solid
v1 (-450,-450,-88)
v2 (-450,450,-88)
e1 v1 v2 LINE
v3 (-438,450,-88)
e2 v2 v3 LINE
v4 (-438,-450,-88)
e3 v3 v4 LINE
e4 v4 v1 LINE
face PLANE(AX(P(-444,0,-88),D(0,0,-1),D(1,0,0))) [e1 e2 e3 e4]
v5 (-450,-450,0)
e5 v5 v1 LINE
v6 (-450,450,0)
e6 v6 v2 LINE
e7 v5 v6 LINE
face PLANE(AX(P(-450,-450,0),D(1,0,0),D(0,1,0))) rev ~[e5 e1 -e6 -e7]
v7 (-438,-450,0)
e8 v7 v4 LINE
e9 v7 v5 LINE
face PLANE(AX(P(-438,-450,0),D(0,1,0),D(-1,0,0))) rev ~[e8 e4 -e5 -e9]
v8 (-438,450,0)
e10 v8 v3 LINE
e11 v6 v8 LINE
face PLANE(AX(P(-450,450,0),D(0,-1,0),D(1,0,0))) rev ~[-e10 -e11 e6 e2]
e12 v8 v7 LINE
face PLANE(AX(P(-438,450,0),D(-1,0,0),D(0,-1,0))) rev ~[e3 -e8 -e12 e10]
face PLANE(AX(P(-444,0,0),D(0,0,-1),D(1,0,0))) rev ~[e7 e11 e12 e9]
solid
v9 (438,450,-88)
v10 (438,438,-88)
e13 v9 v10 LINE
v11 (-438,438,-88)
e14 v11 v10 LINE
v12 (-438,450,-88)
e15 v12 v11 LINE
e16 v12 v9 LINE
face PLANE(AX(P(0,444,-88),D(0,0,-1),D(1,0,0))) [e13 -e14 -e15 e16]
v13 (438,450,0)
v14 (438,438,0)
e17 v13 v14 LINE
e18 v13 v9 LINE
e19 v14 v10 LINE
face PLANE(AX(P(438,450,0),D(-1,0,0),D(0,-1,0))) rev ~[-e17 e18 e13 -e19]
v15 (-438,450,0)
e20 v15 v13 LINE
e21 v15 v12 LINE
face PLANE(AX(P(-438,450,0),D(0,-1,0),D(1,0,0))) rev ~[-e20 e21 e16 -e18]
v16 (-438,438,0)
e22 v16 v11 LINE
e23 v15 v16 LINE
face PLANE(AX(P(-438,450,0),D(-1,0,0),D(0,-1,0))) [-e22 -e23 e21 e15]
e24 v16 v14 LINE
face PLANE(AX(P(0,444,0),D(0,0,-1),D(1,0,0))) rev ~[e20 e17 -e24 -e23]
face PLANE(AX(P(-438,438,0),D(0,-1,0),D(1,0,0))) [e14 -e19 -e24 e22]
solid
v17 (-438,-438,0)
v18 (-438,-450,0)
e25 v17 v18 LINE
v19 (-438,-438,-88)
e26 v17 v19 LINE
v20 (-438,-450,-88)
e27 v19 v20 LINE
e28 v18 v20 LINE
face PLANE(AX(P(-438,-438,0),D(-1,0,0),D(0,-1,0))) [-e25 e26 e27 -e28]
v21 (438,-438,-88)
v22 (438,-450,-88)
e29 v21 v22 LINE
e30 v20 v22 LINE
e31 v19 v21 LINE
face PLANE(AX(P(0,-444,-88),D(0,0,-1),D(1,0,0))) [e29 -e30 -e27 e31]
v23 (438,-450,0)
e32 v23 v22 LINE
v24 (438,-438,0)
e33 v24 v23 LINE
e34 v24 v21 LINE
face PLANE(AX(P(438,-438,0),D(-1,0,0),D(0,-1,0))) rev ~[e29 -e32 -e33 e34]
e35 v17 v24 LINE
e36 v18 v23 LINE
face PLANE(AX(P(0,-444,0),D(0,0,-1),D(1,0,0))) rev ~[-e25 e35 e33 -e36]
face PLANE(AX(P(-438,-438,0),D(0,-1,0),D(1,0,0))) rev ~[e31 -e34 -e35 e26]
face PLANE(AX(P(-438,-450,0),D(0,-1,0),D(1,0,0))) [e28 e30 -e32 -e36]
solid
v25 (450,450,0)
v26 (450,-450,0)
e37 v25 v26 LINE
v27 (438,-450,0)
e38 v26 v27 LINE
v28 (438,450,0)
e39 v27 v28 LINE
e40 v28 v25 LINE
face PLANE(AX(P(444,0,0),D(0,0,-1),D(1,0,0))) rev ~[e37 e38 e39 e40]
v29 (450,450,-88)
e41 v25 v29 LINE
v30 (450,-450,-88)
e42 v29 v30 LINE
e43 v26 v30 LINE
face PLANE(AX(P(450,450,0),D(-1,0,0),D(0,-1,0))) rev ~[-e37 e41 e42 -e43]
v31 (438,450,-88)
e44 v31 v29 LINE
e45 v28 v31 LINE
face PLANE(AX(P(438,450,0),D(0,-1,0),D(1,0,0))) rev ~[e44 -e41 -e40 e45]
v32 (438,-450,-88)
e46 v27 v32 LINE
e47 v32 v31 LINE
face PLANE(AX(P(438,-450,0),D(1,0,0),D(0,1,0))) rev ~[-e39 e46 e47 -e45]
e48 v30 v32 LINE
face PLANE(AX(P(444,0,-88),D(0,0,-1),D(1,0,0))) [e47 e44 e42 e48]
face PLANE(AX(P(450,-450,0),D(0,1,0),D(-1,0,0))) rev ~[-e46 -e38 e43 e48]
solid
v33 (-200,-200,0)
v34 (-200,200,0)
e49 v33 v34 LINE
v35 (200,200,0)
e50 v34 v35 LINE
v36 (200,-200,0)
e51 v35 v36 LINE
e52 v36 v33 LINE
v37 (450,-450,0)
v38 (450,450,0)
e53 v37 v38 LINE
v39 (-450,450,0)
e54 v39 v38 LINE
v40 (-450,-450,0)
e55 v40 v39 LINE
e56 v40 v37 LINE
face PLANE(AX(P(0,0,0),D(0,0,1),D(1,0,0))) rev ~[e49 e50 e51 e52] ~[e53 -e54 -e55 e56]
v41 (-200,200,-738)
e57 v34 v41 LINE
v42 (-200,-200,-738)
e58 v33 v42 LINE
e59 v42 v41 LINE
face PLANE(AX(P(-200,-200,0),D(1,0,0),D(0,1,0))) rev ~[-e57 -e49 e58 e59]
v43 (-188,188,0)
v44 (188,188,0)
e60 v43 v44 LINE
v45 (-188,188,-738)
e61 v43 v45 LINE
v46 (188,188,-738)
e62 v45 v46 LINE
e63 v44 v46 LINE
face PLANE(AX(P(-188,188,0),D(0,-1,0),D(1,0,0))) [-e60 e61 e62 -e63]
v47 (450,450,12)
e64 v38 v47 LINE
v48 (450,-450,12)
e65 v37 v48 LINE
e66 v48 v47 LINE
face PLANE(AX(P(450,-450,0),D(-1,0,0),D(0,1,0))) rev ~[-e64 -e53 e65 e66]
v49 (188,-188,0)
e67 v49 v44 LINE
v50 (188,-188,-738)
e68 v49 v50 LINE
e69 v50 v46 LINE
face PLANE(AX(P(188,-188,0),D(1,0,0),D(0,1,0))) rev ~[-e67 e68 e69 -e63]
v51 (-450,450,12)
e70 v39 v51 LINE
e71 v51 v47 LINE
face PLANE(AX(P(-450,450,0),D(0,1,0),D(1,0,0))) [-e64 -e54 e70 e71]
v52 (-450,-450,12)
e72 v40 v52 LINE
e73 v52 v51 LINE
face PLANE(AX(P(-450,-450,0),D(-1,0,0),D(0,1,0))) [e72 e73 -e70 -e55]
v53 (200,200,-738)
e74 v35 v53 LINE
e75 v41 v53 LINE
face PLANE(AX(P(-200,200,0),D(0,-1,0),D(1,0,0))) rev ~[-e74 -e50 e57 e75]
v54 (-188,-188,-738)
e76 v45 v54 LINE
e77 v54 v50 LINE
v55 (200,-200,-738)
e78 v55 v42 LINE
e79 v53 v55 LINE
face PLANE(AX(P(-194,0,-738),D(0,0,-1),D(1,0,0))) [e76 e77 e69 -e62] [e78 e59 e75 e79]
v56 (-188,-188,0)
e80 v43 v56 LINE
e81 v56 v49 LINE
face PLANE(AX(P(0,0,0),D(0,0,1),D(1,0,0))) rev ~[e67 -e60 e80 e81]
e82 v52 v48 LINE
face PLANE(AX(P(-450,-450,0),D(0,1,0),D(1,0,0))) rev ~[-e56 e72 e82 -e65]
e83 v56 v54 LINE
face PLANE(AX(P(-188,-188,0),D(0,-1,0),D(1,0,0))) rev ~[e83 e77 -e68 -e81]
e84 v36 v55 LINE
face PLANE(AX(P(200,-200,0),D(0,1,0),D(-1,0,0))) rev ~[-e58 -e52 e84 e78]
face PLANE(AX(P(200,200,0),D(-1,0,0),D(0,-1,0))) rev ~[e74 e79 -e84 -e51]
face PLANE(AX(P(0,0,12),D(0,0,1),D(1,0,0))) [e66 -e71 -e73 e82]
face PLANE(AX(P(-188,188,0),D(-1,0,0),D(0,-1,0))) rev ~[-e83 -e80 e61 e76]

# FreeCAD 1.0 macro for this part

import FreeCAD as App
import Part
import Sketcher

V = App.Vector


def add_polygon(sketch, points):
    """Adds a closed chain of lines whose ends are joined by coincident constraints."""
    first, n = sketch.GeometryCount, len(points)
    for a, b in zip(points, points[1:] + points[:1]):
        sketch.addGeometry(Part.LineSegment(App.Vector(*a, 0), App.Vector(*b, 0)), False)
    for i in range(n):
        sketch.addConstraint(Sketcher.Constraint("Coincident", first + i, 2, first + (i + 1) % n, 1))

doc = App.newDocument("Part")
params = doc.addObject("Spreadsheet::Sheet", "Params")
for row, (alias, value) in enumerate([
    ("sketch1_width", "900 mm"),
    ("pad1_length", "12 mm"),
    ("sketch2_width", "400 mm"),
    ("sketch2_width2", "376 mm"),
    ("pad2_length", "738 mm"),
    ("sketch3_width", "12 mm"),
    ("sketch3_height", "900 mm"),
    ("pad3_length", "88 mm"),
    ("sketch4_width", "876 mm"),
    ("sketch4_height", "12 mm"),
    ("pad4_length", "88 mm"),
    ("sketch5_width", "12 mm"),
    ("sketch5_height", "900 mm"),
    ("pad5_length", "88 mm"),
    ("sketch6_width", "876 mm"),
    ("sketch6_height", "12 mm"),
    ("pad6_length", "88 mm"),
], start=1):
    params.set(f"A{row}", alias)
    params.set(f"B{row}", "=" + value)
    params.setAlias(f"B{row}", alias)

body = doc.addObject("PartDesign::Body", "Body")

# Sketch on XY plane
sketch1 = body.newObject("Sketcher::SketchObject", "Sketch")
sketch1.AttachmentSupport = (doc.getObject("XY_Plane"), [""])
sketch1.MapMode = "FlatFace"
add_polygon(sketch1, [(-450, 450), (-450, -450), (450, -450), (450, 450)])  # lines 0-3
sketch1.addConstraint([
    Sketcher.Constraint("Vertical", 0),
    Sketcher.Constraint("Horizontal", 1),
    Sketcher.Constraint("Vertical", 2),
    Sketcher.Constraint("Horizontal", 3),
    Sketcher.Constraint("Symmetric", 0, 2, 2, 2, -1, 1),
    Sketcher.Constraint("Equal", 3, 0),
    Sketcher.Constraint("DistanceX", 1, 1, 1, 2, 900.0),
])
sketch1.setExpression("Constraints[10]", "Params.sketch1_width")
pad1 = body.newObject("PartDesign::Pad", "Pad")
pad1.Profile = sketch1
pad1.setExpression("Length", "Params.pad1_length")

# Sketch on XY plane
sketch2 = body.newObject("Sketcher::SketchObject", "Sketch001")
sketch2.AttachmentSupport = (doc.getObject("XY_Plane"), [""])
sketch2.MapMode = "FlatFace"
add_polygon(sketch2, [(-200, -200), (-200, 200), (200, 200), (200, -200)])  # lines 0-3
add_polygon(sketch2, [(-188, 188), (-188, -188), (188, -188), (188, 188)])  # lines 4-7
sketch2.addConstraint([
    Sketcher.Constraint("Vertical", 0),
    Sketcher.Constraint("Horizontal", 1),
    Sketcher.Constraint("Vertical", 2),
    Sketcher.Constraint("Horizontal", 3),
    Sketcher.Constraint("Vertical", 4),
    Sketcher.Constraint("Horizontal", 5),
    Sketcher.Constraint("Vertical", 6),
    Sketcher.Constraint("Horizontal", 7),
    Sketcher.Constraint("Symmetric", 0, 2, 2, 2, -1, 1),
    Sketcher.Constraint("Symmetric", 4, 2, 6, 2, -1, 1),
    Sketcher.Constraint("Equal", 3, 0),
    Sketcher.Constraint("Equal", 7, 4),
    Sketcher.Constraint("DistanceX", 1, 1, 1, 2, 400.0),
    Sketcher.Constraint("DistanceX", 5, 1, 5, 2, 376.0),
])
sketch2.setExpression("Constraints[20]", "Params.sketch2_width")
sketch2.setExpression("Constraints[21]", "Params.sketch2_width2")
pad2 = body.newObject("PartDesign::Pad", "Pad001")
pad2.Profile = sketch2
pad2.setExpression("Length", "Params.pad2_length")
pad2.Reversed = True
body2 = doc.addObject("PartDesign::Body", "Body001")

# Sketch on XY plane
sketch3 = body2.newObject("Sketcher::SketchObject", "Sketch002")
sketch3.AttachmentSupport = (doc.getObject("XY_Plane001"), [""])
sketch3.MapMode = "FlatFace"
add_polygon(sketch3, [(-438, -450), (-450, -450), (-450, 450), (-438, 450)])  # lines 0-3
sketch3.addConstraint([
    Sketcher.Constraint("Horizontal", 0),
    Sketcher.Constraint("Vertical", 1),
    Sketcher.Constraint("Horizontal", 2),
    Sketcher.Constraint("Vertical", 3),
    Sketcher.Constraint("DistanceX", 0, 2, 0, 1, 12.0),
    Sketcher.Constraint("DistanceY", 1, 1, 1, 2, 900.0),
    Sketcher.Constraint("DistanceX", 0, 2, -1, 1, 450.0),
    Sketcher.Constraint("DistanceY", 0, 2, -1, 1, 450.0),
])
sketch3.setExpression("Constraints[8]", "Params.sketch3_width")
sketch3.setExpression("Constraints[9]", "Params.sketch3_height")
pad3 = body2.newObject("PartDesign::Pad", "Pad002")
pad3.Profile = sketch3
pad3.setExpression("Length", "Params.pad3_length")
pad3.Reversed = True
body3 = doc.addObject("PartDesign::Body", "Body002")

# Sketch on XY plane
sketch4 = body3.newObject("Sketcher::SketchObject", "Sketch003")
sketch4.AttachmentSupport = (doc.getObject("XY_Plane002"), [""])
sketch4.MapMode = "FlatFace"
add_polygon(sketch4, [(-438, -450), (-438, -438), (438, -438), (438, -450)])  # lines 0-3
sketch4.addConstraint([
    Sketcher.Constraint("Vertical", 0),
    Sketcher.Constraint("Horizontal", 1),
    Sketcher.Constraint("Vertical", 2),
    Sketcher.Constraint("Horizontal", 3),
    Sketcher.Constraint("DistanceX", 1, 1, 1, 2, 876.0),
    Sketcher.Constraint("DistanceY", 0, 1, 0, 2, 12.0),
    Sketcher.Constraint("DistanceX", 0, 2, -1, 1, 438.0),
    Sketcher.Constraint("DistanceY", 0, 2, -1, 1, 438.0),
])
sketch4.setExpression("Constraints[8]", "Params.sketch4_width")
sketch4.setExpression("Constraints[9]", "Params.sketch4_height")
pad4 = body3.newObject("PartDesign::Pad", "Pad003")
pad4.Profile = sketch4
pad4.setExpression("Length", "Params.pad4_length")
pad4.Reversed = True
body4 = doc.addObject("PartDesign::Body", "Body003")

# Sketch on XY plane
sketch5 = body4.newObject("Sketcher::SketchObject", "Sketch004")
sketch5.AttachmentSupport = (doc.getObject("XY_Plane003"), [""])
sketch5.MapMode = "FlatFace"
add_polygon(sketch5, [(450, -450), (438, -450), (438, 450), (450, 450)])  # lines 0-3
sketch5.addConstraint([
    Sketcher.Constraint("Horizontal", 0),
    Sketcher.Constraint("Vertical", 1),
    Sketcher.Constraint("Horizontal", 2),
    Sketcher.Constraint("Vertical", 3),
    Sketcher.Constraint("DistanceX", 0, 2, 0, 1, 12.0),
    Sketcher.Constraint("DistanceY", 1, 1, 1, 2, 900.0),
    Sketcher.Constraint("DistanceX", -1, 1, 0, 2, 438.0),
    Sketcher.Constraint("DistanceY", 0, 2, -1, 1, 450.0),
])
sketch5.setExpression("Constraints[8]", "Params.sketch5_width")
sketch5.setExpression("Constraints[9]", "Params.sketch5_height")
pad5 = body4.newObject("PartDesign::Pad", "Pad004")
pad5.Profile = sketch5
pad5.setExpression("Length", "Params.pad5_length")
pad5.Reversed = True
body5 = doc.addObject("PartDesign::Body", "Body004")

# Sketch on XY plane
sketch6 = body5.newObject("Sketcher::SketchObject", "Sketch005")
sketch6.AttachmentSupport = (doc.getObject("XY_Plane004"), [""])
sketch6.MapMode = "FlatFace"
add_polygon(sketch6, [(-438, 438), (-438, 450), (438, 450), (438, 438)])  # lines 0-3
sketch6.addConstraint([
    Sketcher.Constraint("Vertical", 0),
    Sketcher.Constraint("Horizontal", 1),
    Sketcher.Constraint("Vertical", 2),
    Sketcher.Constraint("Horizontal", 3),
    Sketcher.Constraint("DistanceX", 1, 1, 1, 2, 876.0),
    Sketcher.Constraint("DistanceY", 0, 1, 0, 2, 12.0),
    Sketcher.Constraint("DistanceX", 0, 2, -1, 1, 438.0),
    Sketcher.Constraint("DistanceY", -1, 1, 0, 2, 450.0),
])
sketch6.setExpression("Constraints[8]", "Params.sketch6_width")
sketch6.setExpression("Constraints[9]", "Params.sketch6_height")
pad6 = body5.newObject("PartDesign::Pad", "Pad005")
pad6.Profile = sketch6
pad6.setExpression("Length", "Params.pad6_length")
pad6.Reversed = True

doc.recompute()
